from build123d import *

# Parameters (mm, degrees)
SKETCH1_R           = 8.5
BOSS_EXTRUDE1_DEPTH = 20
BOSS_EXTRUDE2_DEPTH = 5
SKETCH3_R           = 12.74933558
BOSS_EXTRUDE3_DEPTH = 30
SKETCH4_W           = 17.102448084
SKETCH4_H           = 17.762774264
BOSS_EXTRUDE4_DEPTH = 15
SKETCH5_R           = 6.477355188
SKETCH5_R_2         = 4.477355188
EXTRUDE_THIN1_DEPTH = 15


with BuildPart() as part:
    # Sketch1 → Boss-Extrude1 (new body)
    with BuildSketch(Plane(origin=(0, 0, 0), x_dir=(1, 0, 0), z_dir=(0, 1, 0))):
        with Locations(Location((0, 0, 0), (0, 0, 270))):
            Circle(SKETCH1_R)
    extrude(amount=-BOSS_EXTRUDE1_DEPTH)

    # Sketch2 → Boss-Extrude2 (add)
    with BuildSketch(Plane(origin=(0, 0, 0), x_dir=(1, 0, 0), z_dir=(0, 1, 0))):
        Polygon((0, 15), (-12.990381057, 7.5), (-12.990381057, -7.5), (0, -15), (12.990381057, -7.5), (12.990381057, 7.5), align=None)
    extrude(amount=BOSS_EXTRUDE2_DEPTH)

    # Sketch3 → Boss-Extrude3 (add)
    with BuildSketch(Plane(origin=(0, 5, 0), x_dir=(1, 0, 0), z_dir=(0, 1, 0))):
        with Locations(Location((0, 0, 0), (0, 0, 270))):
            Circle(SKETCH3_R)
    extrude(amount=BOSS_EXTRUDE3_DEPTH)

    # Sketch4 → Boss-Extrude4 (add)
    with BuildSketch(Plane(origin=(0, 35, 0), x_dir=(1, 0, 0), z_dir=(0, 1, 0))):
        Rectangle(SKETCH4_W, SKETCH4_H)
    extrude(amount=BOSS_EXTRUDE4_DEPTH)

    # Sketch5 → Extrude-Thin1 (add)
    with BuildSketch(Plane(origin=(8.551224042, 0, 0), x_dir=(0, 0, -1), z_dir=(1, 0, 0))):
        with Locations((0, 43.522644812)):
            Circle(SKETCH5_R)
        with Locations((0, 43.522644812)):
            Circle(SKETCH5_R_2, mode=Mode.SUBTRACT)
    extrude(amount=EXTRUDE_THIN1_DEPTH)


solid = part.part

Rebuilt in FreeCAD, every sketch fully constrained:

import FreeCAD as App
import Part
import Sketcher

V = App.Vector
Q = App.Units.Quantity

doc = App.newDocument("Part")
params = doc.addObject("Spreadsheet::Sheet", "Params")
for row, (alias, value) in enumerate([
    ("sketch1_diameter", "17 mm"),
    ("pad1_length", "20 mm"),
    ("sketch2_height", "15 mm"),
    ("sketch2_length", "15 mm"),
    ("pad2_length", "5 mm"),
    ("pad3_length", "30 mm"),
    ("pad4_length", "15 mm"),
    ("pad5_length", "15 mm"),
], start=1):
    params.set(f"A{row}", alias)
    params.set(f"B{row}", "=" + value)
    params.setAlias(f"B{row}", alias)

body = doc.addObject("PartDesign::Body", "Body")

sketch1 = doc.addObject("Sketcher::SketchObject", "Sketch")
body.addObject(sketch1)
sketch1.AttachmentSupport = (doc.XZ_Plane, [""])
sketch1.MapMode = "FlatFace"
sketch1.addGeometry(Part.Circle(V(0, 0, 0), V(0, 0, 1), 8.5), False)
sketch1.addConstraint(Sketcher.Constraint("Coincident", 0, 3, -1, 1))
sketch1.addConstraint(Sketcher.Constraint("Diameter", 0, 17.0))
sketch1.setExpression("Constraints[1]", "Params.sketch1_diameter")
pad1 = doc.addObject("PartDesign::Pad", "Pad")
body.addObject(pad1)
pad1.Profile = sketch1
pad1.setExpression("Length", "Params.pad1_length")

sketch2 = doc.addObject("Sketcher::SketchObject", "Sketch001")
body.addObject(sketch2)
sketch2.AttachmentSupport = (doc.XZ_Plane, [""])
sketch2.MapMode = "FlatFace"
sketch2.addGeometry(Part.LineSegment(V(0, -15, 0), V(-12.990381, -7.5, 0)), False)
sketch2.addGeometry(Part.LineSegment(V(-12.990381, -7.5, 0), V(-12.990381, 7.5, 0)), False)
sketch2.addGeometry(Part.LineSegment(V(-12.990381, 7.5, 0), V(0, 15, 0)), False)
sketch2.addGeometry(Part.LineSegment(V(0, 15, 0), V(12.990381, 7.5, 0)), False)
sketch2.addGeometry(Part.LineSegment(V(12.990381, 7.5, 0), V(12.990381, -7.5, 0)), False)
sketch2.addGeometry(Part.LineSegment(V(12.990381, -7.5, 0), V(0, -15, 0)), False)
sketch2.addConstraint(Sketcher.Constraint("Coincident", 0, 2, 1, 1))
sketch2.addConstraint(Sketcher.Constraint("Coincident", 1, 2, 2, 1))
sketch2.addConstraint(Sketcher.Constraint("Coincident", 2, 2, 3, 1))
sketch2.addConstraint(Sketcher.Constraint("Coincident", 3, 2, 4, 1))
sketch2.addConstraint(Sketcher.Constraint("Coincident", 4, 2, 5, 1))
sketch2.addConstraint(Sketcher.Constraint("Coincident", 5, 2, 0, 1))
sketch2.addConstraint(Sketcher.Constraint("Vertical", 1))
sketch2.addConstraint(Sketcher.Constraint("Vertical", 4))
sketch2.addConstraint(Sketcher.Constraint("Symmetric", 0, 2, 3, 2, -1, 1))
sketch2.addConstraint(Sketcher.Constraint("Symmetric", 2, 2, 5, 2, -1, 1))
sketch2.addConstraint(Sketcher.Constraint("PointOnObject", 2, 2, -2))
sketch2.addConstraint(Sketcher.Constraint("Parallel", 2, 5))
sketch2.addConstraint(Sketcher.Constraint("Horizontal", 1, 2, 3, 2))
sketch2.addConstraint(Sketcher.Constraint("DistanceY", 1, 1, 1, 2, 15.0))
sketch2.addConstraint(Sketcher.Constraint("Angle", 0, Q("150 deg")))
sketch2.addConstraint(Sketcher.Constraint("Distance", 0, 15.0))
sketch2.setExpression("Constraints[13]", "Params.sketch2_height")
sketch2.setExpression("Constraints[15]", "Params.sketch2_length")
pad2 = doc.addObject("PartDesign::Pad", "Pad001")
body.addObject(pad2)
pad2.Profile = sketch2
pad2.setExpression("Length", "Params.pad2_length")
pad2.Reversed = True

sketch3 = doc.addObject("Sketcher::SketchObject", "Sketch002")
body.addObject(sketch3)
sketch3.AttachmentSupport = (doc.XZ_Plane, [""])
sketch3.MapMode = "FlatFace"
sketch3.AttachmentOffset = App.Placement(V(0, 0, -5), App.Rotation())
sketch3.addGeometry(Part.Circle(V(0, 0, 0), V(0, 0, 1), 12.749336), False)
sketch3.addConstraint(Sketcher.Constraint("Coincident", 0, 3, -1, 1))
sketch3.addConstraint(Sketcher.Constraint("Diameter", 0, 25.498671))
pad3 = doc.addObject("PartDesign::Pad", "Pad002")
body.addObject(pad3)
pad3.Profile = sketch3
pad3.setExpression("Length", "Params.pad3_length")
pad3.Reversed = True

sketch4 = doc.addObject("Sketcher::SketchObject", "Sketch003")
body.addObject(sketch4)
sketch4.AttachmentSupport = (doc.XZ_Plane, [""])
sketch4.MapMode = "FlatFace"
sketch4.AttachmentOffset = App.Placement(V(0, 0, -35), App.Rotation())
sketch4.addGeometry(Part.LineSegment(V(-8.551224, -8.881387, 0), V(-8.551224, 8.881387, 0)), False)
sketch4.addGeometry(Part.LineSegment(V(-8.551224, 8.881387, 0), V(8.551224, 8.881387, 0)), False)
sketch4.addGeometry(Part.LineSegment(V(8.551224, 8.881387, 0), V(8.551224, -8.881387, 0)), False)
sketch4.addGeometry(Part.LineSegment(V(8.551224, -8.881387, 0), V(-8.551224, -8.881387, 0)), False)
sketch4.addConstraint(Sketcher.Constraint("Coincident", 0, 2, 1, 1))
sketch4.addConstraint(Sketcher.Constraint("Coincident", 1, 2, 2, 1))
sketch4.addConstraint(Sketcher.Constraint("Coincident", 2, 2, 3, 1))
sketch4.addConstraint(Sketcher.Constraint("Coincident", 3, 2, 0, 1))
sketch4.addConstraint(Sketcher.Constraint("Vertical", 0))
sketch4.addConstraint(Sketcher.Constraint("Horizontal", 1))
sketch4.addConstraint(Sketcher.Constraint("Vertical", 2))
sketch4.addConstraint(Sketcher.Constraint("Horizontal", 3))
sketch4.addConstraint(Sketcher.Constraint("Symmetric", 0, 2, 2, 2, -1, 1))
sketch4.addConstraint(Sketcher.Constraint("DistanceX", 1, 1, 1, 2, 17.102448))
sketch4.addConstraint(Sketcher.Constraint("DistanceY", 0, 1, 0, 2, 17.762774))
pad4 = doc.addObject("PartDesign::Pad", "Pad003")
body.addObject(pad4)
pad4.Profile = sketch4
pad4.setExpression("Length", "Params.pad4_length")
pad4.Reversed = True

sketch5 = doc.addObject("Sketcher::SketchObject", "Sketch004")
body.addObject(sketch5)
sketch5.AttachmentSupport = (doc.YZ_Plane, [""])
sketch5.MapMode = "FlatFace"
sketch5.AttachmentOffset = App.Placement(V(0, 0, 8.551224), App.Rotation())
sketch5.addGeometry(Part.Circle(V(43.522645, 0, 0), V(0, 0, 1), 6.477355), False)
sketch5.addGeometry(Part.Circle(V(43.522645, 0, 0), V(0, 0, 1), 4.477355), False)
sketch5.addConstraint(Sketcher.Constraint("Coincident", 1, 3, 0, 3))
sketch5.addConstraint(Sketcher.Constraint("PointOnObject", 0, 3, -1))
sketch5.addConstraint(Sketcher.Constraint("Diameter", 0, 12.95471))
sketch5.addConstraint(Sketcher.Constraint("Diameter", 1, 8.95471))
sketch5.addConstraint(Sketcher.Constraint("DistanceX", -1, 1, 0, 3, 43.522645))
pad5 = doc.addObject("PartDesign::Pad", "Pad004")
body.addObject(pad5)
pad5.Profile = sketch5
pad5.setExpression("Length", "Params.pad5_length")

doc.recompute()
